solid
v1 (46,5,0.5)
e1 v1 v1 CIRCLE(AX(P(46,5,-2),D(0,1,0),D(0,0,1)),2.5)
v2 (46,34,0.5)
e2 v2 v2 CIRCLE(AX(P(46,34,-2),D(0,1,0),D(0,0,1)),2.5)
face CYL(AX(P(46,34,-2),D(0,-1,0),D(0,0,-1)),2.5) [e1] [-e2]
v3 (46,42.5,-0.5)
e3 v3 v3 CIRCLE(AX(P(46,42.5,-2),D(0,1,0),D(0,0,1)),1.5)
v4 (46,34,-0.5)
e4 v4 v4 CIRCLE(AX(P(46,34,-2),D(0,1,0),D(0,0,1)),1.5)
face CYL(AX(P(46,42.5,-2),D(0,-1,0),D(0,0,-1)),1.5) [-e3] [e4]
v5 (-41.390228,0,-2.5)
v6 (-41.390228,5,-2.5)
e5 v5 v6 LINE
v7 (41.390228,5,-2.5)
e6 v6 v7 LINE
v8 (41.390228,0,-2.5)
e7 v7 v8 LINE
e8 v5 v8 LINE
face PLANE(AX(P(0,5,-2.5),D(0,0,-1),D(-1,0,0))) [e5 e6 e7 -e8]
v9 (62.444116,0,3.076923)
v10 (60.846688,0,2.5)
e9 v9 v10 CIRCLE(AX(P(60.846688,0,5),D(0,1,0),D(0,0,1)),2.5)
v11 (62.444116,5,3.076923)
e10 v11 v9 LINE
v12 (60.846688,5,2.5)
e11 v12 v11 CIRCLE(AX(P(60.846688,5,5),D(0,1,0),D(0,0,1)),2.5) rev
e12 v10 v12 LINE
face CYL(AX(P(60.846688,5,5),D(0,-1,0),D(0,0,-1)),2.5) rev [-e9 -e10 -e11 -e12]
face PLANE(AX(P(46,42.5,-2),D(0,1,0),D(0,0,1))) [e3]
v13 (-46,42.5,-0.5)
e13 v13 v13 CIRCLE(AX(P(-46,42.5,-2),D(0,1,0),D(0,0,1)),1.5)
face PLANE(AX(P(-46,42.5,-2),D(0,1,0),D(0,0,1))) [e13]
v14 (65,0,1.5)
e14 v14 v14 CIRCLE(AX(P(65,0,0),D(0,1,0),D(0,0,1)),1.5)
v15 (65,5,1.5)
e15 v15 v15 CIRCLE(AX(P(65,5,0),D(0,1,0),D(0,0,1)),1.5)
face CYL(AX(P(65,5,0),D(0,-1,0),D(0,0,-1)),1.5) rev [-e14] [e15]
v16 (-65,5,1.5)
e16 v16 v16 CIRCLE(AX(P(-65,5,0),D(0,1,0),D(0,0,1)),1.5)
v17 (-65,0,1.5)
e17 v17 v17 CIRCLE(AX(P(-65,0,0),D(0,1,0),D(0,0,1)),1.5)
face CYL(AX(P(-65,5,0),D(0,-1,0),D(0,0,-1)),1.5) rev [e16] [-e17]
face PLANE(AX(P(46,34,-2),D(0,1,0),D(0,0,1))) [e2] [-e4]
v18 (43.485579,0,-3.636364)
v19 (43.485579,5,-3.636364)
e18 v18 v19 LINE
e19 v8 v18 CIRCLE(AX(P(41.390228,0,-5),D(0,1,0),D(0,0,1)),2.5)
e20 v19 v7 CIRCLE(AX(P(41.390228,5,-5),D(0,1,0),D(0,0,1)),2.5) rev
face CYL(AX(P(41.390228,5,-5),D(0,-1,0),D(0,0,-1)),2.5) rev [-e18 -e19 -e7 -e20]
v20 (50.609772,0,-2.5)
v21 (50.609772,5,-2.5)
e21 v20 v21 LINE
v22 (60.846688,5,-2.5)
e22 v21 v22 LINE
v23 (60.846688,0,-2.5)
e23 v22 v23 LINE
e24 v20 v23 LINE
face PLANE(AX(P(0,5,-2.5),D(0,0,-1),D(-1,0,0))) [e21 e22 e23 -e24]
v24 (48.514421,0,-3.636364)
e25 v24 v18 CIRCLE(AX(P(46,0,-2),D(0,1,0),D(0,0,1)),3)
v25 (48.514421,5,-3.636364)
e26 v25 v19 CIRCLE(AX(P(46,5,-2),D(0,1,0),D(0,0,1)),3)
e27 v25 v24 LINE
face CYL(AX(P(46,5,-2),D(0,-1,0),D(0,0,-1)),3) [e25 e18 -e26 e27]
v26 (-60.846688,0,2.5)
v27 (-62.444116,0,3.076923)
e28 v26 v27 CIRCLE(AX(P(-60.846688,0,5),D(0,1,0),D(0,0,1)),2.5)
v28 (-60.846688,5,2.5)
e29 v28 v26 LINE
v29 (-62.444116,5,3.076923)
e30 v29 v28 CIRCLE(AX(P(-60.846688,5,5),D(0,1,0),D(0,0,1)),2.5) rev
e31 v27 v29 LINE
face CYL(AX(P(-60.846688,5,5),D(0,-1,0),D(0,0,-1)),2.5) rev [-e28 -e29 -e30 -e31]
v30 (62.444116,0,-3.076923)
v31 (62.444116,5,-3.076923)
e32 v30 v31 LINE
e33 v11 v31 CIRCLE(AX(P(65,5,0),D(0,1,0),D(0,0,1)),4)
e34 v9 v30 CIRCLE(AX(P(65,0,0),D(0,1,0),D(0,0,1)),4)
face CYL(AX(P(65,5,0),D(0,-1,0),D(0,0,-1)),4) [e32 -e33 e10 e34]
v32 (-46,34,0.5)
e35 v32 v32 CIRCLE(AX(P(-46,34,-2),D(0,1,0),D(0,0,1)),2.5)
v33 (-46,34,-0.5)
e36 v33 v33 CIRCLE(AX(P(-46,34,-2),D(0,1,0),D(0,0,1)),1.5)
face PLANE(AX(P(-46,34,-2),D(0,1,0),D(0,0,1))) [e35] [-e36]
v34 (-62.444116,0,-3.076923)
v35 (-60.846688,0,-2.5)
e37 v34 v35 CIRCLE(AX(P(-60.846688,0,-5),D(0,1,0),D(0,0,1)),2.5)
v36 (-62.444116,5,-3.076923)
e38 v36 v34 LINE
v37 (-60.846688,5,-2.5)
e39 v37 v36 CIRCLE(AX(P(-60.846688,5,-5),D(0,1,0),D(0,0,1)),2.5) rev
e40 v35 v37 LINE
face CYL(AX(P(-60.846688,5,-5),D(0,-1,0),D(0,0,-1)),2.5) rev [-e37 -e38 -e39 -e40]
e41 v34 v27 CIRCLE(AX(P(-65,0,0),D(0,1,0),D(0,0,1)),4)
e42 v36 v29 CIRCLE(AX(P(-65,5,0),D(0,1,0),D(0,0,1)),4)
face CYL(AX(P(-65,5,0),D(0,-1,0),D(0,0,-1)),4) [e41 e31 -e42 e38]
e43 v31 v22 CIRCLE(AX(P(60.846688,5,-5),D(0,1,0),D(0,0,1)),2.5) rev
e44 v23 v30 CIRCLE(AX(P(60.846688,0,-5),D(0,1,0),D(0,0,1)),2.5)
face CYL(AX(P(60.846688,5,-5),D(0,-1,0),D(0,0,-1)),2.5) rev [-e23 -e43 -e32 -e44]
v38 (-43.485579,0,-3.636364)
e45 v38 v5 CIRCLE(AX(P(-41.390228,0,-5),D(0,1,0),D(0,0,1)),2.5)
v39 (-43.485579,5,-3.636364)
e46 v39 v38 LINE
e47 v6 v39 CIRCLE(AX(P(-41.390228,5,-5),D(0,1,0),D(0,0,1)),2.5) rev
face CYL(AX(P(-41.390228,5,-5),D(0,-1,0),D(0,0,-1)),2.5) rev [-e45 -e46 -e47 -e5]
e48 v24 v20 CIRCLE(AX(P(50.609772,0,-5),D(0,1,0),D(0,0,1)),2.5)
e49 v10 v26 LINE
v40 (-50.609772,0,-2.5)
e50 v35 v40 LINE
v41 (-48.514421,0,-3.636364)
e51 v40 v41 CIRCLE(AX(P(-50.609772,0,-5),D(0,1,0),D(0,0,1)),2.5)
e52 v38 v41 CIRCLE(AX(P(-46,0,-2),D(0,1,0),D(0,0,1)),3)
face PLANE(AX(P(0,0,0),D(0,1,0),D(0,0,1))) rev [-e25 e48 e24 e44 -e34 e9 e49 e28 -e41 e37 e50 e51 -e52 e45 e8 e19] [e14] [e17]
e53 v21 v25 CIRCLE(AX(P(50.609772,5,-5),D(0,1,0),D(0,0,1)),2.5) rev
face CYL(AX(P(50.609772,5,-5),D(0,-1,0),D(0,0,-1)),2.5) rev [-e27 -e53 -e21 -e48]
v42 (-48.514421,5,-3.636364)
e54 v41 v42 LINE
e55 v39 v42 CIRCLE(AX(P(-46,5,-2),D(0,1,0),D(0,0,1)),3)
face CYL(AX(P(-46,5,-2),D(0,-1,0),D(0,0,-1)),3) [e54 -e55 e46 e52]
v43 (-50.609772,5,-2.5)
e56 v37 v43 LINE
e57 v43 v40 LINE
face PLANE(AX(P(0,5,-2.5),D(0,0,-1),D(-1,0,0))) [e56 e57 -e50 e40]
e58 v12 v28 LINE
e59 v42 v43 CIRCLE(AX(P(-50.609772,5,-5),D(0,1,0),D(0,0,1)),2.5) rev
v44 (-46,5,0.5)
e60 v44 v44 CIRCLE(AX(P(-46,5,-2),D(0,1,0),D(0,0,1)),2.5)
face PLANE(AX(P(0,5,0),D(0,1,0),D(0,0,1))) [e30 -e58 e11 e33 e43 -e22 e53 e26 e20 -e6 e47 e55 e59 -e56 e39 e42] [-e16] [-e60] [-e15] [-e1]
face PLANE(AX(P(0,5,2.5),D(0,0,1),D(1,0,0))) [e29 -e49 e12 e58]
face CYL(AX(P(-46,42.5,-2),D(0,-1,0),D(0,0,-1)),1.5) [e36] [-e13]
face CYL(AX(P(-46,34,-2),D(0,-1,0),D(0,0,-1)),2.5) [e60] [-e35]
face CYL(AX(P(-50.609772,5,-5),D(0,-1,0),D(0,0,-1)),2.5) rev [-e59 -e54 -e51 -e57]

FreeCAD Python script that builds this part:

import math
import FreeCAD as App
import Part
import Sketcher

V = App.Vector


def edges_at(feature, points):
    """Names of the edges that pass closest to the given points."""
    edges = feature.Shape.Edges
    near = lambda p: min(range(len(edges)), key=lambda i: edges[i].distToShape(Part.Vertex(*p))[0])
    return sorted({f"Edge{near(p) + 1}" for p in points})

doc = App.newDocument("Part")
body = doc.addObject("PartDesign::Body", "Body")

sketch1 = body.newObject("Sketcher::SketchObject", "Sketch")
sketch1.AttachmentSupport = (doc.getObject("XZ_Plane"), [""])
sketch1.MapMode = "FlatFace"
sketch1.addGeometry(Part.LineSegment(V(-48.95804, -2.5, 0), V(-61.877501, -2.5, 0)), False)
sketch1.addGeometry(Part.ArcOfCircle(Part.Circle(V(-65, 0, 0), V(0, 0, 1), 4), math.radians(38.682187), math.radians(321.317813)), False)
sketch1.addGeometry(Part.LineSegment(V(-61.877501, 2.5, 0), V(61.877501, 2.5, 0)), False)
sketch1.addGeometry(Part.ArcOfCircle(Part.Circle(V(65, 0, 0), V(0, 0, 1), 4), math.radians(-141.317813), math.radians(141.317813)), False)
sketch1.addGeometry(Part.LineSegment(V(61.877501, -2.5, 0), V(48.95804, -2.5, 0)), False)
sketch1.addGeometry(Part.ArcOfCircle(Part.Circle(V(46, -2, 0), V(0, 0, 1), 3), math.radians(-170.405932), math.radians(-9.594068)), False)
sketch1.addGeometry(Part.LineSegment(V(43.04196, -2.5, 0), V(-43.04196, -2.5, 0)), False)
sketch1.addGeometry(Part.ArcOfCircle(Part.Circle(V(-46, -2, 0), V(0, 0, 1), 3), math.radians(-170.405932), math.radians(-9.594068)), False)
sketch1.addGeometry(Part.Circle(V(-65, 0, 0), V(0, 0, 1), 1.5), False)
sketch1.addGeometry(Part.Circle(V(65, 0, 0), V(0, 0, 1), 1.5), False)
sketch1.addConstraint(Sketcher.Constraint("Coincident", 0, 2, 1, 2))
sketch1.addConstraint(Sketcher.Constraint("Coincident", 1, 1, 2, 1))
sketch1.addConstraint(Sketcher.Constraint("Coincident", 2, 2, 3, 2))
sketch1.addConstraint(Sketcher.Constraint("Coincident", 3, 1, 4, 1))
sketch1.addConstraint(Sketcher.Constraint("Coincident", 4, 2, 5, 2))
sketch1.addConstraint(Sketcher.Constraint("Coincident", 5, 1, 6, 1))
sketch1.addConstraint(Sketcher.Constraint("Coincident", 6, 2, 7, 2))
sketch1.addConstraint(Sketcher.Constraint("Coincident", 7, 1, 0, 1))
sketch1.addConstraint(Sketcher.Constraint("Horizontal", 0))
sketch1.addConstraint(Sketcher.Constraint("Horizontal", 2))
sketch1.addConstraint(Sketcher.Constraint("Horizontal", 4))
sketch1.addConstraint(Sketcher.Constraint("Horizontal", 6))
sketch1.addConstraint(Sketcher.Constraint("Coincident", 8, 3, 1, 3))
sketch1.addConstraint(Sketcher.Constraint("Coincident", 9, 3, 3, 3))
sketch1.addConstraint(Sketcher.Constraint("Equal", 1, 3))
sketch1.addConstraint(Sketcher.Constraint("Equal", 5, 7))
sketch1.addConstraint(Sketcher.Constraint("Equal", 8, 9))
sketch1.addConstraint(Sketcher.Constraint("Symmetric", 1, 3, 3, 3, -1, 1))
sketch1.addConstraint(Sketcher.Constraint("Symmetric", 5, 3, 7, 3, -2))
sketch1.addConstraint(Sketcher.Constraint("Symmetric", 0, 2, 3, 1, -2))
sketch1.addConstraint(Sketcher.Constraint("Horizontal", 4, 2, 5, 1))
sketch1.addConstraint(Sketcher.Constraint("Vertical", 0, 2, 1, 1))
sketch1.addConstraint(Sketcher.Constraint("Diameter", 8, 3.0))
sketch1.addConstraint(Sketcher.Constraint("Radius", 1, 4.0))
sketch1.addConstraint(Sketcher.Constraint("Radius", 5, 3.0))
sketch1.addConstraint(Sketcher.Constraint("DistanceX", 1, 3, -1, 1, 65.0))
sketch1.addConstraint(Sketcher.Constraint("DistanceX", -1, 1, 5, 3, 46.0))
sketch1.addConstraint(Sketcher.Constraint("DistanceY", 5, 3, -1, 1, 2.0))
sketch1.addConstraint(Sketcher.Constraint("DistanceY", 0, 2, 1, 1, 5.0))
pad1 = body.newObject("PartDesign::Pad", "Pad")
pad1.Profile = sketch1
pad1.Length = 5
pad1.Reversed = True
doc.recompute()

fillet = body.newObject("PartDesign::Fillet", "Fillet")
fillet.Base = (pad1, edges_at(pad1, [
    (61.878, 2.5, -2.5),
    (61.878, 2.5, 2.5),
    (-61.878, 2.5, 2.5),
    (-61.878, 2.5, -2.5),
    (-48.958, 2.5, -2.5),
    (-43.042, 2.5, -2.5),
    (43.042, 2.5, -2.5),
    (48.958, 2.5, -2.5),
]))
fillet.Radius = 2.5

sketch2 = body.newObject("Sketcher::SketchObject", "Sketch001")
sketch2.AttachmentSupport = (doc.getObject("XZ_Plane"), [""])
sketch2.MapMode = "FlatFace"
sketch2.AttachmentOffset = App.Placement(V(0, 0, -5), App.Rotation())
sketch2.addGeometry(Part.Circle(V(-46, -2, 0), V(0, 0, 1), 2.5), False)
sketch2.addGeometry(Part.Circle(V(46, -2, 0), V(0, 0, 1), 2.5), False)
sketch2.addConstraint(Sketcher.Constraint("Equal", 0, 1))
sketch2.addConstraint(Sketcher.Constraint("Symmetric", 0, 3, 1, 3, -2))
sketch2.addConstraint(Sketcher.Constraint("Diameter", 0, 5.0))
sketch2.addConstraint(Sketcher.Constraint("DistanceX", 0, 3, -1, 1, 46.0))
sketch2.addConstraint(Sketcher.Constraint("DistanceY", 0, 3, -1, 1, 2.0))
pad2 = body.newObject("PartDesign::Pad", "Pad001")
pad2.Profile = sketch2
pad2.Length = 29
pad2.Reversed = True

sketch3 = body.newObject("Sketcher::SketchObject", "Sketch002")
sketch3.AttachmentSupport = (doc.getObject("XZ_Plane"), [""])
sketch3.MapMode = "FlatFace"
sketch3.AttachmentOffset = App.Placement(V(0, 0, -34), App.Rotation())
sketch3.addGeometry(Part.Circle(V(-46, -2, 0), V(0, 0, 1), 1.5), False)
sketch3.addGeometry(Part.Circle(V(46, -2, 0), V(0, 0, 1), 1.5), False)
sketch3.addConstraint(Sketcher.Constraint("Equal", 0, 1))
sketch3.addConstraint(Sketcher.Constraint("Symmetric", 0, 3, 1, 3, -2))
sketch3.addConstraint(Sketcher.Constraint("Diameter", 0, 3.0))
sketch3.addConstraint(Sketcher.Constraint("DistanceX", 0, 3, -1, 1, 46.0))
sketch3.addConstraint(Sketcher.Constraint("DistanceY", 0, 3, -1, 1, 2.0))
pad3 = body.newObject("PartDesign::Pad", "Pad002")
pad3.Profile = sketch3
pad3.Length = 8.5
pad3.Reversed = True

doc.recompute()
